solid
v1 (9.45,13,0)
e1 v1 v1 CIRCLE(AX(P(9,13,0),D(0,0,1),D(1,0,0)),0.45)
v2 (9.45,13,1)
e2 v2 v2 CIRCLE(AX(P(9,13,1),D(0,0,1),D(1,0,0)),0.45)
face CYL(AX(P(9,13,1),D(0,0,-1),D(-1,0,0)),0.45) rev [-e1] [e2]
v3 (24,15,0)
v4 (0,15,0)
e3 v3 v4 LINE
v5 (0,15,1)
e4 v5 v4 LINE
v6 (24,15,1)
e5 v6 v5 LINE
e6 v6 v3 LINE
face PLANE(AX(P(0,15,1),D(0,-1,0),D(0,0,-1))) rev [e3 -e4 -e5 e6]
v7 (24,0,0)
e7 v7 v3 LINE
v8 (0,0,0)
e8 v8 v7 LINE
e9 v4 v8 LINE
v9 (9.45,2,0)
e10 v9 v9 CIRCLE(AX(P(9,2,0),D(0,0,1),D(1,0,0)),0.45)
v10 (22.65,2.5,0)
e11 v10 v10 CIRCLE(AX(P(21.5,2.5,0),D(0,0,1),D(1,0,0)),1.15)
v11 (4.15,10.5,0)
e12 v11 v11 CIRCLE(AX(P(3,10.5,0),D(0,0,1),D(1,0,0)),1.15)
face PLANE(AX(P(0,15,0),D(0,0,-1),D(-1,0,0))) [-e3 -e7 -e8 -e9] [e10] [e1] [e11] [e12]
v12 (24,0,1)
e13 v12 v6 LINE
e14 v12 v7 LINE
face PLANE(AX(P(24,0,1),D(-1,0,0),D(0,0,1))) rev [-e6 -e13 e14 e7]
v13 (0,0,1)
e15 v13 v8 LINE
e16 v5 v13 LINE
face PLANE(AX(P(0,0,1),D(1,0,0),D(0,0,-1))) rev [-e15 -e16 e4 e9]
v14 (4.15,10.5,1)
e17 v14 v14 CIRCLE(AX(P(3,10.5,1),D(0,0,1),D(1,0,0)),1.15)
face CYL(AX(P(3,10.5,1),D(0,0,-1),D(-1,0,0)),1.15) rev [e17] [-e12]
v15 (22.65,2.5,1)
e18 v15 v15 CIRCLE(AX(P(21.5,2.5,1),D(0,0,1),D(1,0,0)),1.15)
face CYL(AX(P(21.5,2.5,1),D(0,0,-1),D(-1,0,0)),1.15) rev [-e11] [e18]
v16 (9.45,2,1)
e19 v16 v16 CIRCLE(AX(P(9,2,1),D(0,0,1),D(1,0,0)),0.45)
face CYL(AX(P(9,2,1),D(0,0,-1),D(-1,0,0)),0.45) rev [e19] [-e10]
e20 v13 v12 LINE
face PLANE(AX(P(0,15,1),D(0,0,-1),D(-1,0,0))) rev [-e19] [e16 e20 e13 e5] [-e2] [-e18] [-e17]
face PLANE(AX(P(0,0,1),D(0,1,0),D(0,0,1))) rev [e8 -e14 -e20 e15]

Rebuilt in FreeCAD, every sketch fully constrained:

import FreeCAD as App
import Part
import Sketcher
from FreeCAD import Vector
Q = App.Units.Quantity


def add_polygon(sketch, points):
    """Adds a closed chain of lines whose ends are joined by coincident constraints."""
    first, n = sketch.GeometryCount, len(points)
    for a, b in zip(points, points[1:] + points[:1]):
        sketch.addGeometry(Part.LineSegment(App.Vector(*a, 0), App.Vector(*b, 0)), False)
    for i in range(n):
        sketch.addConstraint(Sketcher.Constraint("Coincident", first + i, 2, first + (i + 1) % n, 1))

doc = App.newDocument("Part")
body = doc.addObject("PartDesign::Body", "Body")

sketch1 = body.newObject("Sketcher::SketchObject", "Sketch")
sketch1.AttachmentSupport = (doc.getObject("XY_Plane"), [""])
sketch1.MapMode = "FlatFace"
add_polygon(sketch1, [(0, 15), (0, 0), (24, 0), (24, 15)])
sketch1.addGeometry(Part.Circle(Vector(9, 2, 0), Vector(0, 0, 1), 0.45), False)
sketch1.addGeometry(Part.Circle(Vector(21.5, 2.5, 0), Vector(0, 0, 1), 1.15), False)
sketch1.addGeometry(Part.Circle(Vector(3, 10.5, 0), Vector(0, 0, 1), 1.15), False)
sketch1.addGeometry(Part.Circle(Vector(9, 13, 0), Vector(0, 0, 1), 0.45), False)
sketch1.addConstraint(Sketcher.Constraint("Vertical", 0))
sketch1.addConstraint(Sketcher.Constraint("Horizontal", 1))
sketch1.addConstraint(Sketcher.Constraint("Vertical", 2))
sketch1.addConstraint(Sketcher.Constraint("Horizontal", 3))
sketch1.addConstraint(Sketcher.Constraint("Coincident", 0, 2, -1, 1))
sketch1.addConstraint(Sketcher.Constraint("Equal", 5, 6))
sketch1.addConstraint(Sketcher.Constraint("Equal", 4, 7))
sketch1.addConstraint(Sketcher.Constraint("Vertical", 4, 3, 7, 3))
sketch1.addConstraint(Sketcher.Constraint("Diameter", 4, Q("0.9 mm")))
sketch1.addConstraint(Sketcher.Constraint("Diameter", 5, Q("2.3 mm")))
sketch1.addConstraint(Sketcher.Constraint("DistanceX", 1, 1, 1, 2, Q("24 mm")))
sketch1.addConstraint(Sketcher.Constraint("DistanceY", 0, 2, 0, 1, Q("15 mm")))
sketch1.addConstraint(Sketcher.Constraint("DistanceX", -1, 1, 4, 3, Q("9 mm")))
sketch1.addConstraint(Sketcher.Constraint("DistanceY", -1, 1, 4, 3, Q("2 mm")))
sketch1.addConstraint(Sketcher.Constraint("DistanceX", -1, 1, 6, 3, Q("3 mm")))
sketch1.addConstraint(Sketcher.Constraint("DistanceY", -1, 1, 7, 3, Q("13 mm")))
sketch1.addConstraint(Sketcher.Constraint("DistanceY", 5, 3, 6, 3, Q("8 mm")))
sketch1.addConstraint(Sketcher.Constraint("DistanceX", -1, 1, 5, 3, Q("21.5 mm")))
sketch1.addConstraint(Sketcher.Constraint("DistanceY", -1, 1, 5, 3, Q("2.5 mm")))
pad1 = body.newObject("PartDesign::Pad", "Pad")
pad1.Profile = sketch1
pad1.Length = 1

doc.recompute()
